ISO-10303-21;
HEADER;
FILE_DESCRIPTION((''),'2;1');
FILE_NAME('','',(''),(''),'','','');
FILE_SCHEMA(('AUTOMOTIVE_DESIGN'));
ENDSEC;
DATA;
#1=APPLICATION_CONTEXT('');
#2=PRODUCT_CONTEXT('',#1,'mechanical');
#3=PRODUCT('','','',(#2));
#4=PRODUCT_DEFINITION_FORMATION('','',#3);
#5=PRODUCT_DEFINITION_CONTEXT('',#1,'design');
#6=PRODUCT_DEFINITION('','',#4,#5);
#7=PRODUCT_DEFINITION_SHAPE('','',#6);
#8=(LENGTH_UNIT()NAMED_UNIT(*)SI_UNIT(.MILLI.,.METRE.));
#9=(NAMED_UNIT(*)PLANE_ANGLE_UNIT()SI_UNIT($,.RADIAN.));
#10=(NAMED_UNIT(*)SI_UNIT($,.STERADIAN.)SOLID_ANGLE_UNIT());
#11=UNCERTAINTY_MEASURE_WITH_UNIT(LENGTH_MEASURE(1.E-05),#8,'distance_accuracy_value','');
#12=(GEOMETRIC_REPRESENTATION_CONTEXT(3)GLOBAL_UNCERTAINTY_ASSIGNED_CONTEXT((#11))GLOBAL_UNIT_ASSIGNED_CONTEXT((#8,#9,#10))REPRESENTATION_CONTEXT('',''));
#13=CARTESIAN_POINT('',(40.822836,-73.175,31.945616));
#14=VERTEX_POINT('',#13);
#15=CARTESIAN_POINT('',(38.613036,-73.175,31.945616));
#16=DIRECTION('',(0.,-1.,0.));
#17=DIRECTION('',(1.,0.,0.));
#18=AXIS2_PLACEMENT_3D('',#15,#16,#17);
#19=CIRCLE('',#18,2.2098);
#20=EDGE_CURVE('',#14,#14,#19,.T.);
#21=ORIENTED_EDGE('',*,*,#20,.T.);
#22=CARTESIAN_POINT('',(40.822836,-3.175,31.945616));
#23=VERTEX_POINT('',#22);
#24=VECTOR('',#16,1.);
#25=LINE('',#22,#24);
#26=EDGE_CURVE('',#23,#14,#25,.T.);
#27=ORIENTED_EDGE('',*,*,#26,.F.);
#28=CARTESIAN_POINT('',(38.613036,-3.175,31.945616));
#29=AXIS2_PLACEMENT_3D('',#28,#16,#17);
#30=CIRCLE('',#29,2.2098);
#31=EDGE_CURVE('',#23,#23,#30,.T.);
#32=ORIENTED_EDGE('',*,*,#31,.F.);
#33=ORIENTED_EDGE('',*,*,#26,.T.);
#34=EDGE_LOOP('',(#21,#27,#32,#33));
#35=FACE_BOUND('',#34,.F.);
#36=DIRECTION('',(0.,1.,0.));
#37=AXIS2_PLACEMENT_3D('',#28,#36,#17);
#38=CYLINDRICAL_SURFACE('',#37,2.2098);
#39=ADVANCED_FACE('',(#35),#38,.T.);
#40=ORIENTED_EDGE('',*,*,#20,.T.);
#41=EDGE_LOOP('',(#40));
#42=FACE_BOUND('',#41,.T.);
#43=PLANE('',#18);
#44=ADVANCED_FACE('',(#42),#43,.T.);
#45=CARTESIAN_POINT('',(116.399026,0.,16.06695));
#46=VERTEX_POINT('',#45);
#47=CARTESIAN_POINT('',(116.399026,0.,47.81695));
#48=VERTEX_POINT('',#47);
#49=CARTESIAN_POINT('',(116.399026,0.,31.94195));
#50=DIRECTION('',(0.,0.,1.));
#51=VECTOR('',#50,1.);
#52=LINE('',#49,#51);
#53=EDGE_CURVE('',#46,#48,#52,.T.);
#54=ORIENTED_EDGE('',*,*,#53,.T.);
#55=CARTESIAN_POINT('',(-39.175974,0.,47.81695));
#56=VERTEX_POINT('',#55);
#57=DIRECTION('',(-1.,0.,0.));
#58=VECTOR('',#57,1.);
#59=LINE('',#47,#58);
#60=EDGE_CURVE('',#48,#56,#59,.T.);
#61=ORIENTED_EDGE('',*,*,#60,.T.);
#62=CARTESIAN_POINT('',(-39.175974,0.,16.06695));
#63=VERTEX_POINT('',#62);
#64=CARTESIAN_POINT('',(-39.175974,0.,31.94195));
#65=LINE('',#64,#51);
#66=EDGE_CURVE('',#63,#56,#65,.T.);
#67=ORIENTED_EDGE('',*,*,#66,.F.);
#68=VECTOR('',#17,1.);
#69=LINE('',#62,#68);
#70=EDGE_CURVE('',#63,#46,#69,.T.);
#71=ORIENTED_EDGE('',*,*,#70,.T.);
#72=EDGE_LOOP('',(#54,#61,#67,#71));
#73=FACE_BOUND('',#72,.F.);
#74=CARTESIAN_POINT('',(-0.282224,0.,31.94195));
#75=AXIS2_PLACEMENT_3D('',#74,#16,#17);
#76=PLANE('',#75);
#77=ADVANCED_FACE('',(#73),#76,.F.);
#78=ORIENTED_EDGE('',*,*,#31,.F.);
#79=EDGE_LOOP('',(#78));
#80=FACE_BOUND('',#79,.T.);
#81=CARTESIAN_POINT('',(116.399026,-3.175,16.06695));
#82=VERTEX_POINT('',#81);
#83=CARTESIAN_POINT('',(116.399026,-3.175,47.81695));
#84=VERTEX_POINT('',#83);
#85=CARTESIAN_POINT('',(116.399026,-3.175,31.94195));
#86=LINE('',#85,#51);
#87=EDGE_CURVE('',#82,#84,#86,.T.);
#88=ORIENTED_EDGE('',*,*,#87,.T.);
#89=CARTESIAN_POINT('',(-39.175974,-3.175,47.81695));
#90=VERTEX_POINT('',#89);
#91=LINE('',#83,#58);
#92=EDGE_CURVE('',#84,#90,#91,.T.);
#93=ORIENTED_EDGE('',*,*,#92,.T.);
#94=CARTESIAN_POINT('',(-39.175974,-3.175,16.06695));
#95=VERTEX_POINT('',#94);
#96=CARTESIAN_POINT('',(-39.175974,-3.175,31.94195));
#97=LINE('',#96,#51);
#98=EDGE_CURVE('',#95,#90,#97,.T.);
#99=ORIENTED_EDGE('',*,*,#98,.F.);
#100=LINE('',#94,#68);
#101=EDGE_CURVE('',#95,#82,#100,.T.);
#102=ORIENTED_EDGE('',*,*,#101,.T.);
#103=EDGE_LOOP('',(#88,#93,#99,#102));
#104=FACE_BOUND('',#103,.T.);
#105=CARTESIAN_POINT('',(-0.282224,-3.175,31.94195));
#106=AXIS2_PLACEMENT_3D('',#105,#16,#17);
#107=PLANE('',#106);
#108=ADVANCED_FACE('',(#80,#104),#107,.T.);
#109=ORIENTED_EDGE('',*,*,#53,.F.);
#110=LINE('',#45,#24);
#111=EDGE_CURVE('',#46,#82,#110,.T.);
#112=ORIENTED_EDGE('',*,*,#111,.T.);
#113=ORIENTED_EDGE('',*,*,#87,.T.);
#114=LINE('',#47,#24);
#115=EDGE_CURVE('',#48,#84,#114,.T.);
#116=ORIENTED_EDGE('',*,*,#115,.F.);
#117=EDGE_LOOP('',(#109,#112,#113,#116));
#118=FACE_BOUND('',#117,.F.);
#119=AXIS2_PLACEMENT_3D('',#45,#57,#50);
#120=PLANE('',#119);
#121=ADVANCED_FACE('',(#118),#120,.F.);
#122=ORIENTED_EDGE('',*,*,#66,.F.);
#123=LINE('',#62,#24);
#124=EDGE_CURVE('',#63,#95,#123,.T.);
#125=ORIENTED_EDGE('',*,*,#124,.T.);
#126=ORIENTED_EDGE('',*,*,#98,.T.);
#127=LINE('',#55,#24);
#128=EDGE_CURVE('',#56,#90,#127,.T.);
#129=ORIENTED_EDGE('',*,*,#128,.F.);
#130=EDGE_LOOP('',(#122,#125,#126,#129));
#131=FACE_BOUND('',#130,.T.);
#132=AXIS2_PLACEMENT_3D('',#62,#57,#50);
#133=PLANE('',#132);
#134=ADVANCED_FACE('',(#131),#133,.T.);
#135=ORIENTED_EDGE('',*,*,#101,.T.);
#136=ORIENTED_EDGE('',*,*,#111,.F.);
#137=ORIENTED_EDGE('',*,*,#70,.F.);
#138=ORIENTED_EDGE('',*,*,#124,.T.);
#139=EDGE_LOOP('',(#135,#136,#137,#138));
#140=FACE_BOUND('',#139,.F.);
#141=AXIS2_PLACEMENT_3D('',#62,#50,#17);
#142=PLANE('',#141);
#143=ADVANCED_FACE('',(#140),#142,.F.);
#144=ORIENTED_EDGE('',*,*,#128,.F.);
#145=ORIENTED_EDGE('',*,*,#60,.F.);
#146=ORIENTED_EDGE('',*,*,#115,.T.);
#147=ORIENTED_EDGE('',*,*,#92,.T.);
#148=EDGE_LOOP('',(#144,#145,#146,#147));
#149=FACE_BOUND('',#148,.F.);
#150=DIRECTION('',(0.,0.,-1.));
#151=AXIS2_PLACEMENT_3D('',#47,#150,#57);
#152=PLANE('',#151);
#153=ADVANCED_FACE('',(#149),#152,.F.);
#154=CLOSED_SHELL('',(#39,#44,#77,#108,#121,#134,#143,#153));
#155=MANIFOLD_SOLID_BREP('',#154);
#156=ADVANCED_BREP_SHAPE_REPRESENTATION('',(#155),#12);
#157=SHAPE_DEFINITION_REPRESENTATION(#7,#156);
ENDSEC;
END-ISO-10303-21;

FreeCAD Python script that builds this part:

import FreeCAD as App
import Part
import Sketcher
Q = App.Units.Quantity


def add_polygon(sketch, points):
    """Adds a closed chain of lines whose ends are joined by coincident constraints."""
    first, n = sketch.GeometryCount, len(points)
    for a, b in zip(points, points[1:] + points[:1]):
        sketch.addGeometry(Part.LineSegment(App.Vector(*a, 0), App.Vector(*b, 0)), False)
    for i in range(n):
        sketch.addConstraint(Sketcher.Constraint("Coincident", first + i, 2, first + (i + 1) % n, 1))

doc = App.newDocument("Part")
body = doc.addObject("PartDesign::Body", "Body")

# Sketch on XZ plane
sketch1 = body.newObject("Sketcher::SketchObject", "Sketch")
sketch1.AttachmentSupport = (doc.getObject("XZ_Plane"), [""])
sketch1.MapMode = "FlatFace"
add_polygon(sketch1, [(-39, 48), (-39, 16), (116, 16), (116, 48)])  # lines 0-3
sketch1.addConstraint([
    Sketcher.Constraint("Vertical", 0),
    Sketcher.Constraint("Horizontal", 1),
    Sketcher.Constraint("Vertical", 2),
    Sketcher.Constraint("Horizontal", 3),
    Sketcher.Constraint("DistanceY", 0, 2, 0, 1, Q("1.25 in")),
    Sketcher.Constraint("DistanceX", 1, 1, 1, 2, Q("6.125 in")),
    Sketcher.Constraint("DistanceY", -1, 1, 0, 2, Q("16.06695 mm")),
    Sketcher.Constraint("DistanceX", 0, 2, -1, 1, Q("39.175974 mm")),
])
pad1 = body.newObject("PartDesign::Pad", "Pad")
pad1.Profile = sketch1
pad1.Length = Q("0.125 in")

# Sketch on XZ plane
sketch2 = body.newObject("Sketcher::SketchObject", "Sketch001")
sketch2.AttachmentSupport = (doc.getObject("XZ_Plane"), [""])
sketch2.MapMode = "FlatFace"
sketch2.AttachmentOffset = App.Placement(App.Vector(0, 0, 0.125 * 25.4), App.Rotation())
sketch2.addGeometry(Part.Circle(App.Vector(38.6, 31.9, 0), App.Vector(0, 0, 1), 2.2), False)
sketch2.addConstraint([
    Sketcher.Constraint("Diameter", 0, Q("0.174 in")),
    Sketcher.Constraint("DistanceX", -1, 1, 0, 3, Q("38.613036 mm")),
    Sketcher.Constraint("DistanceY", -1, 1, 0, 3, Q("31.945616 mm")),
])
pad2 = body.newObject("PartDesign::Pad", "Pad001")
pad2.Profile = sketch2
pad2.Length = 70

doc.recompute()
